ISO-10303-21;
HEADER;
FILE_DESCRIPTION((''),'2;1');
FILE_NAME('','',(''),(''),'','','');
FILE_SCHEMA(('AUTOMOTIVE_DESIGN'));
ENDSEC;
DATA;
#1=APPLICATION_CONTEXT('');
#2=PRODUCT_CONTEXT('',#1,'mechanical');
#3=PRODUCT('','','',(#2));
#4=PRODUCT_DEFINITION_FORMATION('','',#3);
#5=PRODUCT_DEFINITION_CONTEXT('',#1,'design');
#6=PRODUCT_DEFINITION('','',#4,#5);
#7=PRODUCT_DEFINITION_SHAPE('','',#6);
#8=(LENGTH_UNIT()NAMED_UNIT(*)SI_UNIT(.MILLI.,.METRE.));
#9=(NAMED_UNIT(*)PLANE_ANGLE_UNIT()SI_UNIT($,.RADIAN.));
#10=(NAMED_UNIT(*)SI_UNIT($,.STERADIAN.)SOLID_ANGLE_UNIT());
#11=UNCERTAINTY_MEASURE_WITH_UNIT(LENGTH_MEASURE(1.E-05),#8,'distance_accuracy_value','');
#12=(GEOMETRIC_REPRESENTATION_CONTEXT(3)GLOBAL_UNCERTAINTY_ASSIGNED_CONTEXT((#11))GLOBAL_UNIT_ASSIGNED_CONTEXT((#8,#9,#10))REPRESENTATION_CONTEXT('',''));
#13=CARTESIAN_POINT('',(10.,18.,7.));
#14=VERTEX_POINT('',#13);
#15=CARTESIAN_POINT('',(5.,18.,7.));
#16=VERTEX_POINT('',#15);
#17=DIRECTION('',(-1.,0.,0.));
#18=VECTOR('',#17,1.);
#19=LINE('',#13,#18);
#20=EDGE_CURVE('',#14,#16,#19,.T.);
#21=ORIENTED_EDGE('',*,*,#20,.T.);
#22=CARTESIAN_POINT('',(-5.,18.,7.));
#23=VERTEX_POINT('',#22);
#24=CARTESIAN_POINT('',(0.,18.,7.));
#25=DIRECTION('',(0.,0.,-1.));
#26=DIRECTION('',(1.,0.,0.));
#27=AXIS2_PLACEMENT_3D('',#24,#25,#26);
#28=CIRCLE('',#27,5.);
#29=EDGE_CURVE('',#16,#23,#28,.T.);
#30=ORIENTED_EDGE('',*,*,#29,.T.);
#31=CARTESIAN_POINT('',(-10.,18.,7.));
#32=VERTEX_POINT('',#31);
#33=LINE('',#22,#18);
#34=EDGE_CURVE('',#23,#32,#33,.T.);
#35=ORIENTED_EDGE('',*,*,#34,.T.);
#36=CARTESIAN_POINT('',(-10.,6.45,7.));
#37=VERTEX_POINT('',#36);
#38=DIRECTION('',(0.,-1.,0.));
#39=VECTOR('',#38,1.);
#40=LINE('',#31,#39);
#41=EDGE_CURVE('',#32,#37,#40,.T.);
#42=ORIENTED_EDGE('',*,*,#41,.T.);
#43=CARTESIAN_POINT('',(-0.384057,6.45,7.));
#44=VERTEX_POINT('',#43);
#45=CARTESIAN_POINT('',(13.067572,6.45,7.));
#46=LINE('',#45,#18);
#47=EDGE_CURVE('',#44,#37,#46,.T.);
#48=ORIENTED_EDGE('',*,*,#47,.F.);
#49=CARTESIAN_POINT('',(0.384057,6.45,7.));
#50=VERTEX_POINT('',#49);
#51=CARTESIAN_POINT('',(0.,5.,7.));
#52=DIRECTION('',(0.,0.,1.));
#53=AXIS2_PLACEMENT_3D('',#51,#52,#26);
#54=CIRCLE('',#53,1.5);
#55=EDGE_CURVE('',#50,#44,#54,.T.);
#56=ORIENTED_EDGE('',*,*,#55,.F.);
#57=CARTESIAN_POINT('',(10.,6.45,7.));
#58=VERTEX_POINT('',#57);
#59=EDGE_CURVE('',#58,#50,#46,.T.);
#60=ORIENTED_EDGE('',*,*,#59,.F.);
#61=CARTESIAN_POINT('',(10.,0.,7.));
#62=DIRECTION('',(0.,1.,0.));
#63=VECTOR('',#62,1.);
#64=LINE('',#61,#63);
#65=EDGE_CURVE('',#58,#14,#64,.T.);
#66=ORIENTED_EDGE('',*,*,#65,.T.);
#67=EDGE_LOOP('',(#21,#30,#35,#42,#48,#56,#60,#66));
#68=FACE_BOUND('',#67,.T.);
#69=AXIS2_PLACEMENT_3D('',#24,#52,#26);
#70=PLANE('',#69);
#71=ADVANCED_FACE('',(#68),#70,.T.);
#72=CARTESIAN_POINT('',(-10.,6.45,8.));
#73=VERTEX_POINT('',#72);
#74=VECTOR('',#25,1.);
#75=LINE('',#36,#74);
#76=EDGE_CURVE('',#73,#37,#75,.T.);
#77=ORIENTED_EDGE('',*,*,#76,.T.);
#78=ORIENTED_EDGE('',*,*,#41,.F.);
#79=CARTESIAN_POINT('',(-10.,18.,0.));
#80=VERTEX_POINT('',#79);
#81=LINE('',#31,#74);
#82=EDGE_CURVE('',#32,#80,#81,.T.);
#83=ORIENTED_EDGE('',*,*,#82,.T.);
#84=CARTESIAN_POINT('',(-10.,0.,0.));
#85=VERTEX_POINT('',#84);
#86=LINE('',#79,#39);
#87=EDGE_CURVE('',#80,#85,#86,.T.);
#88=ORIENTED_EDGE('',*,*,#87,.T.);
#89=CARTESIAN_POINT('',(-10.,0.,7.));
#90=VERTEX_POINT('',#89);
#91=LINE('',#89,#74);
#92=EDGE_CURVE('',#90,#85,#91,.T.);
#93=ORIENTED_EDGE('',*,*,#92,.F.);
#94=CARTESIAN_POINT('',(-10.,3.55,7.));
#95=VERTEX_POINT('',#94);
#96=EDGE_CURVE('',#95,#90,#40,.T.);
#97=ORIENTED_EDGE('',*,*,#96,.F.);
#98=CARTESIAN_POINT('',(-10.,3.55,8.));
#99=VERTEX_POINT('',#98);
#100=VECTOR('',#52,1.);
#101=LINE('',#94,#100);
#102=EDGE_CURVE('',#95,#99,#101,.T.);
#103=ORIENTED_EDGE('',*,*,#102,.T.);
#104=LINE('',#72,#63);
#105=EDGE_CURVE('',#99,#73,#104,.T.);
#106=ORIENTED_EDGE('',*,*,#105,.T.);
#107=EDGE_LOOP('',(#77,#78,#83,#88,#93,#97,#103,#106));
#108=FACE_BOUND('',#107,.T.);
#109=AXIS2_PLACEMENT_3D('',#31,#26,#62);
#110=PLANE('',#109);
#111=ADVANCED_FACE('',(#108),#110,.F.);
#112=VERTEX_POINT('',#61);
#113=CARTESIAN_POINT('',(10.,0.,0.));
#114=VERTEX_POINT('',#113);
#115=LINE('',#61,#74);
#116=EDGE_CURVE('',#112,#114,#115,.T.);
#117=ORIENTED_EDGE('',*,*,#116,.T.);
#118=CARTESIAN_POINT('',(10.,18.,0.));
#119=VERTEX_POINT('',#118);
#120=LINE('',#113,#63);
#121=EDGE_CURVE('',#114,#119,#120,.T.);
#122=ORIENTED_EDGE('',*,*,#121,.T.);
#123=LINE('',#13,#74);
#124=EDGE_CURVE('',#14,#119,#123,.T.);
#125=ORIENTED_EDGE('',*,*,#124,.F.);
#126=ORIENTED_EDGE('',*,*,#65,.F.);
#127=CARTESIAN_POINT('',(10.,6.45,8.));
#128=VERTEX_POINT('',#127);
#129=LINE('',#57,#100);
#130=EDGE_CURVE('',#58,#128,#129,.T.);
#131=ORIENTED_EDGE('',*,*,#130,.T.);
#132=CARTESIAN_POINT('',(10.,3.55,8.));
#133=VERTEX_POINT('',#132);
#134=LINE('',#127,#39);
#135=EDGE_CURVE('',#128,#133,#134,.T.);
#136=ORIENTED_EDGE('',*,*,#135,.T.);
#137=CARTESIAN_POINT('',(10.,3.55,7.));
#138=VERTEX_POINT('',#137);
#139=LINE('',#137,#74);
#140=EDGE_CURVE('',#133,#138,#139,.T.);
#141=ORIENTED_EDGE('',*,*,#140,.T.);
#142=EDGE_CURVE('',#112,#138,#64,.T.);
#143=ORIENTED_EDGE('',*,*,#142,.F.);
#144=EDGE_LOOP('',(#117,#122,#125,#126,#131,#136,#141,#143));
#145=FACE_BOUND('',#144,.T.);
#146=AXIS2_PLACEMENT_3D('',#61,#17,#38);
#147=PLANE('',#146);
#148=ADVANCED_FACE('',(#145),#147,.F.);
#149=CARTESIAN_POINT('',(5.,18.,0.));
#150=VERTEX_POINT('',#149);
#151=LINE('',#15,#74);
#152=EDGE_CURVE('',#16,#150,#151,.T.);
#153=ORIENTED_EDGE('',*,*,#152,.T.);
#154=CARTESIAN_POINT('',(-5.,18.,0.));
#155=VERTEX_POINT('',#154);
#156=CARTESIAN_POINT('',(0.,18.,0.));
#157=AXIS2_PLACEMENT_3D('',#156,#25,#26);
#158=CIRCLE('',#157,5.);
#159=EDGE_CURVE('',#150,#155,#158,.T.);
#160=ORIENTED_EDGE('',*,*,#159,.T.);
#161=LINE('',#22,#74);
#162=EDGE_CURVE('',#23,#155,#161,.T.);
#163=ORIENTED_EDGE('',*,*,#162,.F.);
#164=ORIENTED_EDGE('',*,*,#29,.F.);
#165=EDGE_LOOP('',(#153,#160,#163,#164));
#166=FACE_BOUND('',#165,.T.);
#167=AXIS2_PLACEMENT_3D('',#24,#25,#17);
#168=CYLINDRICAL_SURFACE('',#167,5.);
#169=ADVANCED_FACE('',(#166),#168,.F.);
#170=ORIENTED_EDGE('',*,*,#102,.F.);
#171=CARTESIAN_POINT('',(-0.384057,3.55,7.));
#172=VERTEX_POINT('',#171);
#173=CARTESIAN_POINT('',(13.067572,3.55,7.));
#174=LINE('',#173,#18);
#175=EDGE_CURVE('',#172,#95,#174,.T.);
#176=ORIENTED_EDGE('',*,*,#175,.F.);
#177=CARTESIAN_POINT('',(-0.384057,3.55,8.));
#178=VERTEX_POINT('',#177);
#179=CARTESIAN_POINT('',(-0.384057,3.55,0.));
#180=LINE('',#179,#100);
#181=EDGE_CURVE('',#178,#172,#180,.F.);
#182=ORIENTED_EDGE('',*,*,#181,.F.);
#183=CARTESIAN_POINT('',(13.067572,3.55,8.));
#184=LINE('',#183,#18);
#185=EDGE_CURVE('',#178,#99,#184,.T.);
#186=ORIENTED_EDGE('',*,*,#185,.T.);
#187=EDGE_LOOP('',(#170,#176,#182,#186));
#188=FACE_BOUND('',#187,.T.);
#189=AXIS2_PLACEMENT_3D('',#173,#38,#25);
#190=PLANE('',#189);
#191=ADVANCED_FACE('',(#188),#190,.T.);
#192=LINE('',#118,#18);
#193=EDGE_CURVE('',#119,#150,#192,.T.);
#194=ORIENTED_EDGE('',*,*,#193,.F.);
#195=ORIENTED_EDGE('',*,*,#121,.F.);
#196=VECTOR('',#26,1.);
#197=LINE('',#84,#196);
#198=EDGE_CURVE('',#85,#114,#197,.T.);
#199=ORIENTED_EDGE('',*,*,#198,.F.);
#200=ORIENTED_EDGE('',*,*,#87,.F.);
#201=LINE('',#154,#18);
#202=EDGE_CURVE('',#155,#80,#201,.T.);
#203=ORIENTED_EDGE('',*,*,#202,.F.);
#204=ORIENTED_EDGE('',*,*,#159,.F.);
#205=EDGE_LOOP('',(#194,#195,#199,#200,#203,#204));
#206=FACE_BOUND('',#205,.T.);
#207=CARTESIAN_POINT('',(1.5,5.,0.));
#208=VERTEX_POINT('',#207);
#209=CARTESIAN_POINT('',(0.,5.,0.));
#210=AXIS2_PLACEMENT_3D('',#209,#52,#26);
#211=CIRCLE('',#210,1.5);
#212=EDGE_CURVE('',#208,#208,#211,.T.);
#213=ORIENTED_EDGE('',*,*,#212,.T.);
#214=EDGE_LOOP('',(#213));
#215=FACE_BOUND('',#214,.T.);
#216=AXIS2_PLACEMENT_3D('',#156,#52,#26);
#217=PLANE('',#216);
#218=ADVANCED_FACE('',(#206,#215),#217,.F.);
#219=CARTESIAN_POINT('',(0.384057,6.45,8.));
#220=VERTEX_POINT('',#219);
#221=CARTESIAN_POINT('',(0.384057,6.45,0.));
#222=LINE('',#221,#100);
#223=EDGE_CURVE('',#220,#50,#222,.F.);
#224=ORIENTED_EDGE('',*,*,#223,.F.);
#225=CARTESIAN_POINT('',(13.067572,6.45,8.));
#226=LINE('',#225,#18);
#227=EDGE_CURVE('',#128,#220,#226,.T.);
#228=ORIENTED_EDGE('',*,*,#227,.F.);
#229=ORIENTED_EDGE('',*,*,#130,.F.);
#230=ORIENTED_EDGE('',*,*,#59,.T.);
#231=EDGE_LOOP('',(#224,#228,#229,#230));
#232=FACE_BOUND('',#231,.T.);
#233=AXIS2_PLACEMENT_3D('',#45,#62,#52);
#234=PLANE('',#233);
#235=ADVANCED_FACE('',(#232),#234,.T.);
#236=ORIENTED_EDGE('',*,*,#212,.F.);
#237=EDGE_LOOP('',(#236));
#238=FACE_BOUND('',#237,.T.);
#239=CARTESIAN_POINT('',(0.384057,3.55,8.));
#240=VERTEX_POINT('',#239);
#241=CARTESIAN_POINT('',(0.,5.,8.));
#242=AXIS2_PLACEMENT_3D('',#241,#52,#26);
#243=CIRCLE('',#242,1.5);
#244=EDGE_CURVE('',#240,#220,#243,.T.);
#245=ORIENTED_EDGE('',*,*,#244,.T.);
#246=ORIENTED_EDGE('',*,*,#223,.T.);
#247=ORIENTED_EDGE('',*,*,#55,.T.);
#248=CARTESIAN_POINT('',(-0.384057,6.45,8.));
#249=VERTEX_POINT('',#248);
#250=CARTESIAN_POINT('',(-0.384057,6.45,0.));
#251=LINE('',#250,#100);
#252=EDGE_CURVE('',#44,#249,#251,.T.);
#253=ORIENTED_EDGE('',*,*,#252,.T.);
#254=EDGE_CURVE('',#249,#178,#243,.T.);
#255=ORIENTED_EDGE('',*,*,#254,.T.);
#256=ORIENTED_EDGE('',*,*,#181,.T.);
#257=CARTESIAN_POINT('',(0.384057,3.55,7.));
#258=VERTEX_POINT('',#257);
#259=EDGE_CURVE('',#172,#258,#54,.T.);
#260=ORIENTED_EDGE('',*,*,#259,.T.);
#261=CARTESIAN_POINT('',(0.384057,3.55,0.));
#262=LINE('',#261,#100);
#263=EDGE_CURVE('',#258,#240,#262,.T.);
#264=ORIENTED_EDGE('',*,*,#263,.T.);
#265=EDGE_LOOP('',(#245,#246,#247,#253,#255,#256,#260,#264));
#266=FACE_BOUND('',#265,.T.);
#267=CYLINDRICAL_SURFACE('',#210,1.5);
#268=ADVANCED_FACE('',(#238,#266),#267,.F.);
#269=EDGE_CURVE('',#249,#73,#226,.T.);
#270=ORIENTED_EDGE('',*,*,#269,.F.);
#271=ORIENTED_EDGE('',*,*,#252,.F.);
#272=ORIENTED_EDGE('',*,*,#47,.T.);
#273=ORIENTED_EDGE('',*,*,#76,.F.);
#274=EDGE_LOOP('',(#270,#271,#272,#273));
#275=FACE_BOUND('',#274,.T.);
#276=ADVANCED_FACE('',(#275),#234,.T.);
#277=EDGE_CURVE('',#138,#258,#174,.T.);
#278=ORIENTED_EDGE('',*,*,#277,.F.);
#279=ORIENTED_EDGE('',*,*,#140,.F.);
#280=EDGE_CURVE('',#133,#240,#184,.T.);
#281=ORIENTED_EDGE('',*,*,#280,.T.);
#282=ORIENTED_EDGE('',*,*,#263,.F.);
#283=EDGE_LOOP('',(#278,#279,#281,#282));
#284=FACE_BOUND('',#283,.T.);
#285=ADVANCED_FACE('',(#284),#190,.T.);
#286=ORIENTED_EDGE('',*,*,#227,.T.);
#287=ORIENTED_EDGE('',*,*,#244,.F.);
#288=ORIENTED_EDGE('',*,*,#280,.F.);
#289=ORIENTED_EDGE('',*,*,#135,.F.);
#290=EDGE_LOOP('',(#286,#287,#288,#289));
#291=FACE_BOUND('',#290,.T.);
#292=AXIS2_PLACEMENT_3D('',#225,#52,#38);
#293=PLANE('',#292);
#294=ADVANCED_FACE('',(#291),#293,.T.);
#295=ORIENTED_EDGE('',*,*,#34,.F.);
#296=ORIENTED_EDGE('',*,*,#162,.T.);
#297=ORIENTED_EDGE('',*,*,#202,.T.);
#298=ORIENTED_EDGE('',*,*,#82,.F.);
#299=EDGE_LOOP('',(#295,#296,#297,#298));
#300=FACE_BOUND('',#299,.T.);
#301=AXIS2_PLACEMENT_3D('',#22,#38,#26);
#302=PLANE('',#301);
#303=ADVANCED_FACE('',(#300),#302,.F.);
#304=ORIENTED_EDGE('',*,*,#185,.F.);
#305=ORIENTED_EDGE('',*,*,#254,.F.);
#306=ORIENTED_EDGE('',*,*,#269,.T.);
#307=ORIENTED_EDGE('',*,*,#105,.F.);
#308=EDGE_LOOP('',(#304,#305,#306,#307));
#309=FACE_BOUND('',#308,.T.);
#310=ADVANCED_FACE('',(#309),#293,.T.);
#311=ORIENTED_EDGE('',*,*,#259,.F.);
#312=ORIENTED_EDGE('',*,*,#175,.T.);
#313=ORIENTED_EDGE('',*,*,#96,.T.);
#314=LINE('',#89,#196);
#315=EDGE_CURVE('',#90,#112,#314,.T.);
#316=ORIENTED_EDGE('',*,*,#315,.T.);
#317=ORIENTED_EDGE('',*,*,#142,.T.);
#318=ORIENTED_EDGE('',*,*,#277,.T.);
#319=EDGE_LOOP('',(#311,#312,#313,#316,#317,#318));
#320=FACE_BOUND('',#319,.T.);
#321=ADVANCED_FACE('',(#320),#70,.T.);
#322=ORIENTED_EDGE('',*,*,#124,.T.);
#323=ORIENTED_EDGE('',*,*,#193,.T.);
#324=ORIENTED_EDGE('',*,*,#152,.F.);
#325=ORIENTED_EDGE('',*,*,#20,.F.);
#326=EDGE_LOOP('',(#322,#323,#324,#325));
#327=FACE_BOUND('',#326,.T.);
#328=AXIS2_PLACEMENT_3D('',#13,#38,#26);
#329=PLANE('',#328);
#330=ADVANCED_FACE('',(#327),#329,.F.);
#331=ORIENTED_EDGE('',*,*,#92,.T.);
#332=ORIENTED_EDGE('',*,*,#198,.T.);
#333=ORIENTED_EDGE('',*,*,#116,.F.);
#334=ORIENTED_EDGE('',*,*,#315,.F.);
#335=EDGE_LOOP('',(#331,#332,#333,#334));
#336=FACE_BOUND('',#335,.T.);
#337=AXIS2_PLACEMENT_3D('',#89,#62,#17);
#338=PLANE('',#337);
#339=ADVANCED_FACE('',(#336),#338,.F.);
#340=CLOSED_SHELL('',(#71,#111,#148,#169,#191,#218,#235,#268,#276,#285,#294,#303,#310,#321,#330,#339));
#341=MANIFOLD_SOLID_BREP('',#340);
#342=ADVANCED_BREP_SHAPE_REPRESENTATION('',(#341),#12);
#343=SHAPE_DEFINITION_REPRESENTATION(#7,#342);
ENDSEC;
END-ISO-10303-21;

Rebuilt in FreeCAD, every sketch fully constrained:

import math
import FreeCAD as App
import Part
import Sketcher


def add_polygon(sketch, points):
    """Adds a closed chain of lines whose ends are joined by coincident constraints."""
    first, n = sketch.GeometryCount, len(points)
    for a, b in zip(points, points[1:] + points[:1]):
        sketch.addGeometry(Part.LineSegment(App.Vector(*a, 0), App.Vector(*b, 0)), False)
    for i in range(n):
        sketch.addConstraint(Sketcher.Constraint("Coincident", first + i, 2, first + (i + 1) % n, 1))

doc = App.newDocument("Part")
body = doc.addObject("PartDesign::Body", "Body")

# Sketch on XY plane
sketch1 = body.newObject("Sketcher::SketchObject", "Sketch")
sketch1.AttachmentSupport = (doc.getObject("XY_Plane"), [""])
sketch1.MapMode = "FlatFace"
sketch1.addGeometry([
    Part.LineSegment(App.Vector(-10, 0, 0), App.Vector(10, 0, 0)),  # 0
    Part.LineSegment(App.Vector(10, 0, 0), App.Vector(10, 18, 0)),  # 1
    Part.LineSegment(App.Vector(10, 18, 0), App.Vector(5, 18, 0)),  # 2
    Part.ArcOfCircle(Part.Circle(App.Vector(0, 18, 0), App.Vector(0, 0, 1), 5), math.radians(180), math.radians(360)),  # 3
    Part.LineSegment(App.Vector(-5, 18, 0), App.Vector(-10, 18, 0)),  # 4
    Part.LineSegment(App.Vector(-10, 18, 0), App.Vector(-10, 0, 0)),  # 5
], False)
sketch1.addConstraint([
    Sketcher.Constraint("Coincident", 0, 2, 1, 1),
    Sketcher.Constraint("Coincident", 1, 2, 2, 1),
    Sketcher.Constraint("Coincident", 2, 2, 3, 2),
    Sketcher.Constraint("Coincident", 3, 1, 4, 1),
    Sketcher.Constraint("Coincident", 4, 2, 5, 1),
    Sketcher.Constraint("Coincident", 5, 2, 0, 1),
    Sketcher.Constraint("Horizontal", 0),
    Sketcher.Constraint("Vertical", 1),
    Sketcher.Constraint("Horizontal", 2),
    Sketcher.Constraint("Horizontal", 4),
    Sketcher.Constraint("Vertical", 5),
    Sketcher.Constraint("Symmetric", 0, 2, 5, 2, -1, 1),
    Sketcher.Constraint("Symmetric", 2, 2, 3, 1, -2),
    Sketcher.Constraint("Horizontal", 3, 3, 1, 2),
    Sketcher.Constraint("Radius", 3, 5.0),
    Sketcher.Constraint("DistanceX", 0, 1, 0, 2, 20.0),
    Sketcher.Constraint("DistanceY", 1, 1, 1, 2, 18.0),
])
pad1 = body.newObject("PartDesign::Pad", "Pad")
pad1.Profile = sketch1
pad1.Length = 7

# Sketch on YZ plane
sketch2 = body.newObject("Sketcher::SketchObject", "Sketch001")
sketch2.AttachmentSupport = (doc.getObject("YZ_Plane"), [""])
sketch2.MapMode = "FlatFace"
sketch2.AttachmentOffset = App.Placement(App.Vector(0, 0, -10), App.Rotation())
add_polygon(sketch2, [(6.5, 7), (3.5, 7), (3.5, 8), (6.5, 8)])  # lines 0-3
sketch2.addConstraint([
    Sketcher.Constraint("Horizontal", 0),
    Sketcher.Constraint("Vertical", 1),
    Sketcher.Constraint("Horizontal", 2),
    Sketcher.Constraint("Vertical", 3),
    Sketcher.Constraint("DistanceY", 1, 1, 1, 2, 1.0),
    Sketcher.Constraint("DistanceX", 0, 2, 0, 1, 2.9),
    Sketcher.Constraint("DistanceY", -1, 1, 0, 2, 7.0),
    Sketcher.Constraint("DistanceX", -1, 1, 0, 2, 3.55),
])
pad2 = body.newObject("PartDesign::Pad", "Pad001")
pad2.Profile = sketch2
pad2.Length = 20

# Sketch on XY plane
sketch3 = body.newObject("Sketcher::SketchObject", "Sketch002")
sketch3.AttachmentSupport = (doc.getObject("XY_Plane"), [""])
sketch3.MapMode = "FlatFace"
sketch3.AttachmentOffset = App.Placement(App.Vector(0, 0, 8), App.Rotation())
sketch3.addGeometry(Part.Circle(App.Vector(0, 5, 0), App.Vector(0, 0, 1), 1.5), False)
sketch3.addConstraint([
    Sketcher.Constraint("PointOnObject", 0, 3, -2),
    Sketcher.Constraint("Diameter", 0, 3.0),
    Sketcher.Constraint("DistanceY", -1, 1, 0, 3, 5.0),
])
pocket1 = body.newObject("PartDesign::Pocket", "Pocket")
pocket1.Profile = sketch3
pocket1.Type = "ThroughAll"

doc.recompute()
